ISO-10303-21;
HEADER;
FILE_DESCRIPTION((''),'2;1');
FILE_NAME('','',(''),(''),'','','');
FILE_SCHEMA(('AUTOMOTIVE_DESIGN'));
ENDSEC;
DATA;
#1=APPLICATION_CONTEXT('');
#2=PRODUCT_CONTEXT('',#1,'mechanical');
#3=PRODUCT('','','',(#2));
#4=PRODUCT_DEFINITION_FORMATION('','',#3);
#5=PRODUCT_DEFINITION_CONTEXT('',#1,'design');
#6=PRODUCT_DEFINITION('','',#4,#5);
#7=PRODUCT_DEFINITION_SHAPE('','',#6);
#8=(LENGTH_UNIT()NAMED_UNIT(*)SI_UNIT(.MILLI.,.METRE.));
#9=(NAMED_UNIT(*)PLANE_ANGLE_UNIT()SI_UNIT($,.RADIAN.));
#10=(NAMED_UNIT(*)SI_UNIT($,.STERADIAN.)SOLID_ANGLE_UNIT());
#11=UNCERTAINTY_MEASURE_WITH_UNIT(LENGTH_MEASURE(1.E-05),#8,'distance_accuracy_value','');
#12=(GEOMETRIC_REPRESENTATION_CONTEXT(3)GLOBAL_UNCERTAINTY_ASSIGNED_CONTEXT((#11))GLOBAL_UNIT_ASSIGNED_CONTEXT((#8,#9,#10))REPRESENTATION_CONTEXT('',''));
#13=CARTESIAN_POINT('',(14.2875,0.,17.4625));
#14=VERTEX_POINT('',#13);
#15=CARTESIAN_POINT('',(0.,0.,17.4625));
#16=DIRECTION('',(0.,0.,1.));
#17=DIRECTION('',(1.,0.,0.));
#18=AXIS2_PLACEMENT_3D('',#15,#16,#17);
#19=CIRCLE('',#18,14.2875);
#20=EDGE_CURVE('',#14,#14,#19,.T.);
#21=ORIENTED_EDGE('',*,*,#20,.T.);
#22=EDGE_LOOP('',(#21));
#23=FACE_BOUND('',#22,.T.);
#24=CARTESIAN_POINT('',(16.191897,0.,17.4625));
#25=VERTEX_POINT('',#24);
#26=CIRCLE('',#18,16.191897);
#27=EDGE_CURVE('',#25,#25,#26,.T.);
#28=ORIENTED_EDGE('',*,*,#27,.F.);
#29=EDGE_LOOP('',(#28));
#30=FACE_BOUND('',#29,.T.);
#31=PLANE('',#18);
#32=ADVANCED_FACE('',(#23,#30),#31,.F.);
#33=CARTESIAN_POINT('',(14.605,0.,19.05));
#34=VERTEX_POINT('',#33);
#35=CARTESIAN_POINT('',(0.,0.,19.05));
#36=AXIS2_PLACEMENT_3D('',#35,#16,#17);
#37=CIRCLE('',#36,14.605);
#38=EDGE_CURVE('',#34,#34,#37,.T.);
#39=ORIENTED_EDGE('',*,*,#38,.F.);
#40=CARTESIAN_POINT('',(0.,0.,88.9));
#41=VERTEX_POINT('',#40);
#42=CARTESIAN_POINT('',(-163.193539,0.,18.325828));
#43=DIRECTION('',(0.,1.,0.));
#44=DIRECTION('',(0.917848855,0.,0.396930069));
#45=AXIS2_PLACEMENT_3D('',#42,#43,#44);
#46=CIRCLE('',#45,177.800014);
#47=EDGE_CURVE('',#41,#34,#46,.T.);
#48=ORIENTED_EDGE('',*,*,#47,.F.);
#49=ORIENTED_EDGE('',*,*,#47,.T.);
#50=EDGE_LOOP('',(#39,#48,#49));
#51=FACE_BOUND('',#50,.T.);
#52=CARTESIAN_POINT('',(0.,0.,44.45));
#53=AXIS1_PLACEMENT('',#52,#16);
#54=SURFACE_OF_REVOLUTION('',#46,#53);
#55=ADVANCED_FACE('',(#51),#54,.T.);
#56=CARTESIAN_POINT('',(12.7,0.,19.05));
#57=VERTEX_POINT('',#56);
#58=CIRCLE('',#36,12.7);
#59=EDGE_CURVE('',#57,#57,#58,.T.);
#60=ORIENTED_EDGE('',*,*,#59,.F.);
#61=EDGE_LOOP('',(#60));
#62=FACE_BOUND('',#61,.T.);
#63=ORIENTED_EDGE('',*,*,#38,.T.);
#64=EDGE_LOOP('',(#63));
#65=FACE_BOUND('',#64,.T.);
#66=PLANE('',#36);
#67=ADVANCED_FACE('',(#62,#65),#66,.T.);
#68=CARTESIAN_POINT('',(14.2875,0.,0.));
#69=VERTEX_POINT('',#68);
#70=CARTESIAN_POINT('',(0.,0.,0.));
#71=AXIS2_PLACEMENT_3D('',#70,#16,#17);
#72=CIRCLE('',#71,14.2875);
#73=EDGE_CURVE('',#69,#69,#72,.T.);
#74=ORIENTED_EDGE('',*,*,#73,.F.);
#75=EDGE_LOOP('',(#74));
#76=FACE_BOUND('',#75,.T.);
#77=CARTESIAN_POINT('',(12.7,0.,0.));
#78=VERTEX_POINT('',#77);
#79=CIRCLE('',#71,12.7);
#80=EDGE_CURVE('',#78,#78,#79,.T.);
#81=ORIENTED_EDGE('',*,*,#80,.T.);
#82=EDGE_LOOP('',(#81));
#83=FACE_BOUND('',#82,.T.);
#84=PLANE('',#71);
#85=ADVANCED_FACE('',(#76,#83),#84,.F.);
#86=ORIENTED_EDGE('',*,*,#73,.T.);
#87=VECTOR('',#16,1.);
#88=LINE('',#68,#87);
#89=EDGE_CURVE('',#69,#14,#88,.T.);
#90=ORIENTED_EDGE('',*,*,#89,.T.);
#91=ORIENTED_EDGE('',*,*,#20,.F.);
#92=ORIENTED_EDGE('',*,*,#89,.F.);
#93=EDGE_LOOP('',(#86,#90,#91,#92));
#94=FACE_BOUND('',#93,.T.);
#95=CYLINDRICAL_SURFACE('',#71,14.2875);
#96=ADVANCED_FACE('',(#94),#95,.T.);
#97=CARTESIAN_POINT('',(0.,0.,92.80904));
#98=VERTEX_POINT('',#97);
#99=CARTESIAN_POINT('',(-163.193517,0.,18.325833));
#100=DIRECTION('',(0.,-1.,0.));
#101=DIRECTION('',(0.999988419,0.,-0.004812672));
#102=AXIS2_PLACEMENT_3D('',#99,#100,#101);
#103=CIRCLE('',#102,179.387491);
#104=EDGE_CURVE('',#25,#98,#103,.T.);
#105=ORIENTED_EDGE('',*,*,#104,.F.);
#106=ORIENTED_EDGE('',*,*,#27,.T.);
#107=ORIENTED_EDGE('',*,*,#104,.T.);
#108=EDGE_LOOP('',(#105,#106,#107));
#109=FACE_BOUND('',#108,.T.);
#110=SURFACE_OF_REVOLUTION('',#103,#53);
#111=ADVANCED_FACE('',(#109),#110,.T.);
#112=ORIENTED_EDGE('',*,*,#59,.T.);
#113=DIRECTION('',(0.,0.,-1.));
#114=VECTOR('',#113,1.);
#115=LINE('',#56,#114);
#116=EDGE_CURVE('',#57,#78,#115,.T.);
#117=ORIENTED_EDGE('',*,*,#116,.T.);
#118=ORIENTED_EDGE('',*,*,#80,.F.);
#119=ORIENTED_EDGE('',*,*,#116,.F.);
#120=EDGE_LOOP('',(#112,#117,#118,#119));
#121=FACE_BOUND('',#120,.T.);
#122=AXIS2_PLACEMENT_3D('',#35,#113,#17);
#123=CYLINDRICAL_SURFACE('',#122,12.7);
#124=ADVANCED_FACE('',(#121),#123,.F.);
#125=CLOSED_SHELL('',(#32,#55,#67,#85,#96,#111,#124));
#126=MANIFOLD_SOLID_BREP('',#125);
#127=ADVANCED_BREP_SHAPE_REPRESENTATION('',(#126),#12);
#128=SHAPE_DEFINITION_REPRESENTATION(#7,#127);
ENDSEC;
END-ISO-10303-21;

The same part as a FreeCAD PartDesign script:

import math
import FreeCAD as App
import Part
import Sketcher
Q = App.Units.Quantity

doc = App.newDocument("Part")
params = doc.addObject("Spreadsheet::Sheet", "Params")
for row, (alias, value) in enumerate([
    ("sketch1_height", "0.75 in"),
    ("sketch1_width", "0.075 in"),
    ("sketch1_width2", "0.0625 in"),
    ("sketch1_height2", "0.6875 in"),
    ("revolution_angle", "360 deg"),
], start=1):
    params.set(f"A{row}", alias)
    params.set(f"B{row}", "=" + value)
    params.setAlias(f"B{row}", alias)

body = doc.addObject("PartDesign::Body", "Body")

# Sketch on XZ plane
sketch1 = body.newObject("Sketcher::SketchObject", "Sketch")
sketch1.AttachmentSupport = (doc.getObject("XZ_Plane"), [""])
sketch1.MapMode = "FlatFace"
sketch1.addGeometry(Part.LineSegment(App.Vector(0, 92.8, 0), App.Vector(0, 88.9, 0)), False)
sketch1.addGeometry(Part.ArcOfCircle(Part.Circle(App.Vector(-163.2, 18.3, 0), App.Vector(0, 0, 1), 177.8), math.radians(0), math.radians(23)), False)
sketch1.addGeometry(Part.LineSegment(App.Vector(14.6, 19.1, 0), App.Vector(12.7, 19.1, 0)), False)
sketch1.addGeometry(Part.LineSegment(App.Vector(12.7, 19.1, 0), App.Vector(12.7, 0, 0)), False)
sketch1.addGeometry(Part.LineSegment(App.Vector(12.7, 0, 0), App.Vector(14.3, 0, 0)), False)
sketch1.addGeometry(Part.LineSegment(App.Vector(14.3, 0, 0), App.Vector(14.3, 17.5, 0)), False)
sketch1.addGeometry(Part.LineSegment(App.Vector(14.3, 17.5, 0), App.Vector(16.2, 17.5, 0)), False)
sketch1.addGeometry(Part.ArcOfCircle(Part.Circle(App.Vector(-163.2, 18.3, 0), App.Vector(0, 0, 1), 179.4), math.radians(0), math.radians(25)), False)
sketch1.addConstraint(Sketcher.Constraint("Coincident", 0, 2, 1, 2))
sketch1.addConstraint(Sketcher.Constraint("Coincident", 1, 1, 2, 1))
sketch1.addConstraint(Sketcher.Constraint("Coincident", 2, 2, 3, 1))
sketch1.addConstraint(Sketcher.Constraint("Coincident", 3, 2, 4, 1))
sketch1.addConstraint(Sketcher.Constraint("Coincident", 4, 2, 5, 1))
sketch1.addConstraint(Sketcher.Constraint("Coincident", 5, 2, 6, 1))
sketch1.addConstraint(Sketcher.Constraint("Coincident", 6, 2, 7, 1))
sketch1.addConstraint(Sketcher.Constraint("Coincident", 7, 2, 0, 1))
sketch1.addConstraint(Sketcher.Constraint("Vertical", 0))
sketch1.addConstraint(Sketcher.Constraint("Horizontal", 2))
sketch1.addConstraint(Sketcher.Constraint("Vertical", 3))
sketch1.addConstraint(Sketcher.Constraint("Horizontal", 4))
sketch1.addConstraint(Sketcher.Constraint("Vertical", 5))
sketch1.addConstraint(Sketcher.Constraint("Horizontal", 6))
sketch1.addConstraint(Sketcher.Constraint("PointOnObject", 0, 2, -2))
sketch1.addConstraint(Sketcher.Constraint("PointOnObject", 3, 2, -1))
sketch1.addConstraint(Sketcher.Constraint("DistanceY", 3, 2, 3, 1, Q("0.75 in")))
sketch1.addConstraint(Sketcher.Constraint("DistanceY", -1, 1, 0, 2, Q("3.5 in")))
sketch1.addConstraint(Sketcher.Constraint("DistanceX", -1, 1, 2, 2, Q("0.5 in")))
sketch1.addConstraint(Sketcher.Constraint("DistanceX", 2, 2, 2, 1, Q("0.075 in")))
sketch1.addConstraint(Sketcher.Constraint("DistanceX", 4, 1, 4, 2, Q("0.0625 in")))
sketch1.addConstraint(Sketcher.Constraint("DistanceY", 5, 1, 5, 2, Q("0.6875 in")))
sketch1.addConstraint(Sketcher.Constraint("Radius", 7, 179.387491))
sketch1.addConstraint(Sketcher.Constraint("Radius", 1, 177.800014))
sketch1.addConstraint(Sketcher.Constraint("DistanceY", 0, 2, 0, 1, 3.90904))
sketch1.addConstraint(Sketcher.Constraint("DistanceX", 6, 1, 6, 2, 1.904397))
sketch1.setExpression("Constraints[16]", "Params.sketch1_height")
sketch1.setExpression("Constraints[19]", "Params.sketch1_width")
sketch1.setExpression("Constraints[20]", "Params.sketch1_width2")
sketch1.setExpression("Constraints[21]", "Params.sketch1_height2")
revolution = body.newObject("PartDesign::Revolution", "Revolution")
revolution.Profile = sketch1
revolution.ReferenceAxis = (sketch1, ["V_Axis"])
revolution.setExpression("Angle", "Params.revolution_angle")

doc.recompute()
